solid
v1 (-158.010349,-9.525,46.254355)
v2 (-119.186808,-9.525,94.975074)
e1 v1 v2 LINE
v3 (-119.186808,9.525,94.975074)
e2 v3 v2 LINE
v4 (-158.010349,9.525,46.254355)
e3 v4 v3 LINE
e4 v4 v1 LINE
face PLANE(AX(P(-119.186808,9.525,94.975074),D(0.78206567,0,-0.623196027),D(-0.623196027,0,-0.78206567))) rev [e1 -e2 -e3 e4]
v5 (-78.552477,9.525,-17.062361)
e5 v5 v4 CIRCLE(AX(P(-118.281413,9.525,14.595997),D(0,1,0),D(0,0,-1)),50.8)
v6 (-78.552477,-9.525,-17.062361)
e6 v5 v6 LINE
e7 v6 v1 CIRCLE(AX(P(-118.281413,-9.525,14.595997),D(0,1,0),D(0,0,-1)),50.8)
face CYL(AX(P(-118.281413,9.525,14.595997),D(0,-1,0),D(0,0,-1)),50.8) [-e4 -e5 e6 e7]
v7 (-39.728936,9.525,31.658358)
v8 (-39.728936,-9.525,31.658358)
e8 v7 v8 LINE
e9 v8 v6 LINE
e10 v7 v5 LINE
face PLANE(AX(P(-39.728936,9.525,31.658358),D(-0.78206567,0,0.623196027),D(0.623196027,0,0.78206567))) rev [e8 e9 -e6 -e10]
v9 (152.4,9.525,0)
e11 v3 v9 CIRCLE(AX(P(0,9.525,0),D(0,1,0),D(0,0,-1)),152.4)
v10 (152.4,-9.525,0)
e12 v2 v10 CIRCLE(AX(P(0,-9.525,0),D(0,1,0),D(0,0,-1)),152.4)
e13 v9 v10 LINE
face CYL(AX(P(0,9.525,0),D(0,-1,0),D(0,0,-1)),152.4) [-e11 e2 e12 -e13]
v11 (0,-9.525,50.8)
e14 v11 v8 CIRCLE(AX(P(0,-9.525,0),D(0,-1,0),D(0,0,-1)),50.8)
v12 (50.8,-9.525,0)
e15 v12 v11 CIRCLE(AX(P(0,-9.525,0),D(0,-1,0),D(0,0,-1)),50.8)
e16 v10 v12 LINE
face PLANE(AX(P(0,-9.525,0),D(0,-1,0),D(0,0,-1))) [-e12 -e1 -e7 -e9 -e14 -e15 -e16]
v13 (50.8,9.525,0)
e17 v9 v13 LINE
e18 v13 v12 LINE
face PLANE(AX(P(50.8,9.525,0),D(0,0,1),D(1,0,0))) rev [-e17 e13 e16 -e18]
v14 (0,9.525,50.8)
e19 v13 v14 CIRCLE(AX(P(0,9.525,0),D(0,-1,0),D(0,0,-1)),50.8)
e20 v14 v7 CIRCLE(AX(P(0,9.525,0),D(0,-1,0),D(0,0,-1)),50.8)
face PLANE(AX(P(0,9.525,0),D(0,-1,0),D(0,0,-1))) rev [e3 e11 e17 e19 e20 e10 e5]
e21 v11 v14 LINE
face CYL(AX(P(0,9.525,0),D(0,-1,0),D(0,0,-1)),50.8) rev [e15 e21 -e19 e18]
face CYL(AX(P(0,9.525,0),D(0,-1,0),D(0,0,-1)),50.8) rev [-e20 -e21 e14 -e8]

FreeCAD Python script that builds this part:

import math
import FreeCAD as App
import Part
import Sketcher

V = App.Vector
Q = App.Units.Quantity

doc = App.newDocument("Part")
params = doc.addObject("Spreadsheet::Sheet", "Params")
for row, (alias, value) in enumerate([
    ("sketch1_radius", "2 in"),
    ("pad1_length", "0.75 in"),
], start=1):
    params.set(f"A{row}", alias)
    params.set(f"B{row}", "=" + value)
    params.setAlias(f"B{row}", alias)

body = doc.addObject("PartDesign::Body", "Body")

# Sketch on XZ plane
sketch1 = body.newObject("Sketcher::SketchObject", "Sketch")
sketch1.AttachmentSupport = (doc.getObject("XZ_Plane"), [""])
sketch1.MapMode = "FlatFace"
sketch1.addGeometry([
    Part.LineSegment(V(-40, 32, 0), V(-79, -17, 0)),  # 0
    Part.ArcOfCircle(Part.Circle(V(-118, 15, 0), V(0, 0, 1), 51), math.radians(141), math.radians(321)),  # 1
    Part.LineSegment(V(-158, 46, 0), V(-119, 95, 0)),  # 2
    Part.ArcOfCircle(Part.Circle(V(0, 0, 0), V(0, 0, 1), 152), math.radians(0), math.radians(141)),  # 3
    Part.LineSegment(V(152, 0, 0), V(51, 0, 0)),  # 4
    Part.ArcOfCircle(Part.Circle(V(0, 0, 0), V(0, 0, 1), 51), math.radians(0), math.radians(141)),  # 5
], False)
sketch1.addConstraint([
    Sketcher.Constraint("Tangent", 0, 2, 1, 2),
    Sketcher.Constraint("Tangent", 1, 1, 2, 1),
    Sketcher.Constraint("Tangent", 2, 2, 3, 2),
    Sketcher.Constraint("Coincident", 3, 1, 4, 1),
    Sketcher.Constraint("Coincident", 4, 2, 5, 1),
    Sketcher.Constraint("Tangent", 5, 2, 0, 1),
    Sketcher.Constraint("Horizontal", 4),
    Sketcher.Constraint("Coincident", 3, 3, -1, 1),
    Sketcher.Constraint("Coincident", 5, 3, -1, 1),
    Sketcher.Constraint("Equal", 1, 5),
    Sketcher.Constraint("PointOnObject", 3, 1, -1),
    Sketcher.Constraint("Parallel", 0, 2),
    Sketcher.Constraint("Radius", 1, Q("2 in")),
    Sketcher.Constraint("Distance", 0, Q("62.297478 mm")),
    Sketcher.Constraint("DistanceY", 0, 2, -1, 1, Q("17.062361 mm")),
])
sketch1.setExpression("Constraints[12]", "Params.sketch1_radius")
pad1 = body.newObject("PartDesign::Pad", "Pad")
pad1.Profile = sketch1
pad1.setExpression("Length", "Params.pad1_length")
pad1.Midplane = True

doc.recompute()
